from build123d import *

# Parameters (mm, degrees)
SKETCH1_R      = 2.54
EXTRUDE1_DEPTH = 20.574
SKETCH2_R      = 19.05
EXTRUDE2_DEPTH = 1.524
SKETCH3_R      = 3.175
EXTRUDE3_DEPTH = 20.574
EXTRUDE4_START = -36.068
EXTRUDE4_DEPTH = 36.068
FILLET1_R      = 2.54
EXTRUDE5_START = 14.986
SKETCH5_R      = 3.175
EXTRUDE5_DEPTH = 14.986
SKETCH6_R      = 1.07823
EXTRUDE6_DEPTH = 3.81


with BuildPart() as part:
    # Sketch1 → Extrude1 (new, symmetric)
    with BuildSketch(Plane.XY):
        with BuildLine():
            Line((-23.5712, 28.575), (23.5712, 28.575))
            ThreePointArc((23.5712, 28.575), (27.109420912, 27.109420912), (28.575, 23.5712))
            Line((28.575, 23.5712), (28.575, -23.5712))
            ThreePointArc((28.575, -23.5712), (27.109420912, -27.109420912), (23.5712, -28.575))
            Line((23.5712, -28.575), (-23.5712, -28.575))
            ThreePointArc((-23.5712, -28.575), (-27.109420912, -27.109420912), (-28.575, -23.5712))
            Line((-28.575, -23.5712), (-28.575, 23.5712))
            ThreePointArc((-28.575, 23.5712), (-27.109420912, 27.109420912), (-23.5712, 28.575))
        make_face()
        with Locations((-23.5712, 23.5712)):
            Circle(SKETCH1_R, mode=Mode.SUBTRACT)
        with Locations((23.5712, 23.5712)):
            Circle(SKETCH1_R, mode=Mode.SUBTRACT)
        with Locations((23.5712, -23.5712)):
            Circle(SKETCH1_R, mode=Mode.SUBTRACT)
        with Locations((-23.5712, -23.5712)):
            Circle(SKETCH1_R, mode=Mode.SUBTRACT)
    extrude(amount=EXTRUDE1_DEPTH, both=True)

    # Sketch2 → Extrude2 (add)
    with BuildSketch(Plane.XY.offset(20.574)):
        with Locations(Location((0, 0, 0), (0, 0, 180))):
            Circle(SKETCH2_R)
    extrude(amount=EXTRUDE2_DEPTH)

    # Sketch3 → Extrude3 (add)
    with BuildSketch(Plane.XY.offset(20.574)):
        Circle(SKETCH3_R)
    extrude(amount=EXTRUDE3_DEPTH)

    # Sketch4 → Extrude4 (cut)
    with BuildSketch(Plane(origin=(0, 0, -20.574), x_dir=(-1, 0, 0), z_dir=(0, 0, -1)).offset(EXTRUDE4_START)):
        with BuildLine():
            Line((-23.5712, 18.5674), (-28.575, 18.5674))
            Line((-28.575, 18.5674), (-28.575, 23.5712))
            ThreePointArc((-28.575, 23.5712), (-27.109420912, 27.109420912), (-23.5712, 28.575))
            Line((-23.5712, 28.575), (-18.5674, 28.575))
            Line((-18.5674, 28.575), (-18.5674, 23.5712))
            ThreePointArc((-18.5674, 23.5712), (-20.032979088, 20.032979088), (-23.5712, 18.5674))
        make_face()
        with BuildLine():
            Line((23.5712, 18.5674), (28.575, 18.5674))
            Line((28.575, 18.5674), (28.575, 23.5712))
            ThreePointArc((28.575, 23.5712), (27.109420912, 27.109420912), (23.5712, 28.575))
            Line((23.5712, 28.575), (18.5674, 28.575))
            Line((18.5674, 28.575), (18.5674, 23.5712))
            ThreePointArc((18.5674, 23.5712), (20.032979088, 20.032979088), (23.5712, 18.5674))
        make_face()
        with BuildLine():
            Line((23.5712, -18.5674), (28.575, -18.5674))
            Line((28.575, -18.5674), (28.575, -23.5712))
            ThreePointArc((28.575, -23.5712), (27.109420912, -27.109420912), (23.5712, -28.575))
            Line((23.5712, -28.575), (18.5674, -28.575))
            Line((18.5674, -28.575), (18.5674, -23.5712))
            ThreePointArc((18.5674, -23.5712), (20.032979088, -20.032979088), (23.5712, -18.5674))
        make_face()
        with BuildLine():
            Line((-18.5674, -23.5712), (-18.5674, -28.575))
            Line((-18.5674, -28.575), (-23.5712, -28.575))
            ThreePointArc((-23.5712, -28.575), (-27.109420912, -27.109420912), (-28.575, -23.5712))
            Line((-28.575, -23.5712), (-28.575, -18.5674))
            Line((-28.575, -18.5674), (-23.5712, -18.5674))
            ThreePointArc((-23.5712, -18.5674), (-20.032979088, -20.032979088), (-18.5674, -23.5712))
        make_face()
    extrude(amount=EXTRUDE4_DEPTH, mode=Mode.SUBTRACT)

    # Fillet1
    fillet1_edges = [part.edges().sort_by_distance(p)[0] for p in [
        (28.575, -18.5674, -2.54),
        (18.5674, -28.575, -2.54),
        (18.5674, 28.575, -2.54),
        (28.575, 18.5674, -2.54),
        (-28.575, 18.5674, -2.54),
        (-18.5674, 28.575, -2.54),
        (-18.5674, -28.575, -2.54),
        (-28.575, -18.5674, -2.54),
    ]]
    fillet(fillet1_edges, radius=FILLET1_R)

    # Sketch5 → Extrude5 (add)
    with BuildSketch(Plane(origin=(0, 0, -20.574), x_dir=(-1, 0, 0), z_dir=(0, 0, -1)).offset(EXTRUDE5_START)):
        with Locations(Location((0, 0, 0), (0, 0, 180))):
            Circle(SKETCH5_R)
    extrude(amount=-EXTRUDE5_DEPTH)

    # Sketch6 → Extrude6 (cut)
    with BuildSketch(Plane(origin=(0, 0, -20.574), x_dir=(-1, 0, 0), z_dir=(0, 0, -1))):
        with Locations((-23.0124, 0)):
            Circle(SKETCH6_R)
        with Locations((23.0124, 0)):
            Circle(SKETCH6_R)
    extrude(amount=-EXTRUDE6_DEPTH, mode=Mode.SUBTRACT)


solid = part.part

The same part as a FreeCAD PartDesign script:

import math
import FreeCAD as App
import Part
import Sketcher

V = App.Vector
Q = App.Units.Quantity


def edges_at(feature, points):
    """Names of the edges that pass closest to the given points."""
    edges = feature.Shape.Edges
    near = lambda p: min(range(len(edges)), key=lambda i: edges[i].distToShape(Part.Vertex(*p))[0])
    return sorted({f"Edge{near(p) + 1}" for p in points})

doc = App.newDocument("Part")
params = doc.addObject("Spreadsheet::Sheet", "Params")
for row, (alias, value) in enumerate([
    ("sketch1_diameter", "0.2 in"),
    ("sketch1_radius", "0.197 in"),
    ("sketch1_width", "1.856 in"),
    ("pad1_length", "1.62 in"),
    ("sketch2_diameter", "1.5 in"),
    ("pad2_length", "0.06 in"),
    ("sketch3_diameter", "0.25 in"),
    ("pad3_length", "0.81 in"),
    ("sketch4_radius", "0.197 in"),
    ("pocket1_length", "1.42 in"),
    ("fillet_radius", "0.1 in"),
    ("sketch5_diameter", "0.25 in"),
    ("pad4_length", "0.59 in"),
    ("pocket2_length", "0.15 in"),
], start=1):
    params.set(f"A{row}", alias)
    params.set(f"B{row}", "=" + value)
    params.setAlias(f"B{row}", alias)

body = doc.addObject("PartDesign::Body", "Body")

# Sketch on XY plane
sketch1 = body.newObject("Sketcher::SketchObject", "Sketch")
sketch1.AttachmentSupport = (doc.getObject("XY_Plane"), [""])
sketch1.MapMode = "FlatFace"
sketch1.addGeometry(Part.LineSegment(V(23.6, 28.6, 0), V(-23.6, 28.6, 0)), False)
sketch1.addGeometry(Part.ArcOfCircle(Part.Circle(V(-23.6, 23.6, 0), V(0, 0, 1), 5), math.radians(90), math.radians(180)), False)
sketch1.addGeometry(Part.LineSegment(V(-28.6, 23.6, 0), V(-28.6, -23.6, 0)), False)
sketch1.addGeometry(Part.ArcOfCircle(Part.Circle(V(-23.6, -23.6, 0), V(0, 0, 1), 5), math.radians(180), math.radians(270)), False)
sketch1.addGeometry(Part.LineSegment(V(-23.6, -28.6, 0), V(23.6, -28.6, 0)), False)
sketch1.addGeometry(Part.ArcOfCircle(Part.Circle(V(23.6, -23.6, 0), V(0, 0, 1), 5), math.radians(-90), math.radians(0)), False)
sketch1.addGeometry(Part.LineSegment(V(28.6, -23.6, 0), V(28.6, 23.6, 0)), False)
sketch1.addGeometry(Part.ArcOfCircle(Part.Circle(V(23.6, 23.6, 0), V(0, 0, 1), 5), math.radians(0), math.radians(90)), False)
sketch1.addGeometry(Part.Circle(V(23.6, -23.6, 0), V(0, 0, 1), 2.5), False)
sketch1.addGeometry(Part.Circle(V(-23.6, -23.6, 0), V(0, 0, 1), 2.5), False)
sketch1.addGeometry(Part.Circle(V(23.6, 23.6, 0), V(0, 0, 1), 2.5), False)
sketch1.addGeometry(Part.Circle(V(-23.6, 23.6, 0), V(0, 0, 1), 2.5), False)
sketch1.addConstraint(Sketcher.Constraint("Tangent", 0, 2, 1, 1))
sketch1.addConstraint(Sketcher.Constraint("Tangent", 1, 2, 2, 1))
sketch1.addConstraint(Sketcher.Constraint("Tangent", 2, 2, 3, 1))
sketch1.addConstraint(Sketcher.Constraint("Tangent", 3, 2, 4, 1))
sketch1.addConstraint(Sketcher.Constraint("Tangent", 4, 2, 5, 1))
sketch1.addConstraint(Sketcher.Constraint("Tangent", 5, 2, 6, 1))
sketch1.addConstraint(Sketcher.Constraint("Tangent", 6, 2, 7, 1))
sketch1.addConstraint(Sketcher.Constraint("Tangent", 7, 2, 0, 1))
sketch1.addConstraint(Sketcher.Constraint("Horizontal", 0))
sketch1.addConstraint(Sketcher.Constraint("Vertical", 2))
sketch1.addConstraint(Sketcher.Constraint("Horizontal", 4))
sketch1.addConstraint(Sketcher.Constraint("Vertical", 6))
sketch1.addConstraint(Sketcher.Constraint("Coincident", 8, 3, 5, 3))
sketch1.addConstraint(Sketcher.Constraint("Coincident", 9, 3, 3, 3))
sketch1.addConstraint(Sketcher.Constraint("Coincident", 10, 3, 7, 3))
sketch1.addConstraint(Sketcher.Constraint("Coincident", 11, 3, 1, 3))
sketch1.addConstraint(Sketcher.Constraint("Equal", 1, 3))
sketch1.addConstraint(Sketcher.Constraint("Equal", 3, 5))
sketch1.addConstraint(Sketcher.Constraint("Equal", 5, 7))
sketch1.addConstraint(Sketcher.Constraint("Equal", 8, 9))
sketch1.addConstraint(Sketcher.Constraint("Equal", 9, 10))
sketch1.addConstraint(Sketcher.Constraint("Equal", 10, 11))
sketch1.addConstraint(Sketcher.Constraint("Symmetric", 1, 3, 5, 3, -1, 1))
sketch1.addConstraint(Sketcher.Constraint("Equal", 4, 2))
sketch1.addConstraint(Sketcher.Constraint("Diameter", 8, Q("0.2 in")))
sketch1.addConstraint(Sketcher.Constraint("Radius", 1, Q("0.197 in")))
sketch1.addConstraint(Sketcher.Constraint("DistanceX", 0, 2, 0, 1, Q("1.856 in")))
sketch1.setExpression("Constraints[24]", "Params.sketch1_diameter")
sketch1.setExpression("Constraints[25]", "Params.sketch1_radius")
sketch1.setExpression("Constraints[26]", "Params.sketch1_width")
pad1 = body.newObject("PartDesign::Pad", "Pad")
pad1.Profile = sketch1
pad1.setExpression("Length", "Params.pad1_length")
pad1.Midplane = True

# Sketch on XY plane
sketch2 = body.newObject("Sketcher::SketchObject", "Sketch001")
sketch2.AttachmentSupport = (doc.getObject("XY_Plane"), [""])
sketch2.MapMode = "FlatFace"
sketch2.AttachmentOffset = App.Placement(V(0, 0, 0.81 * 25.4), App.Rotation())
sketch2.addGeometry(Part.Circle(V(0, 0, 0), V(0, 0, 1), 19), False)
sketch2.addConstraint(Sketcher.Constraint("Coincident", 0, 3, -1, 1))
sketch2.addConstraint(Sketcher.Constraint("Diameter", 0, Q("1.5 in")))
sketch2.setExpression("Constraints[1]", "Params.sketch2_diameter")
pad2 = body.newObject("PartDesign::Pad", "Pad001")
pad2.Profile = sketch2
pad2.setExpression("Length", "Params.pad2_length")

# Sketch on XY plane
sketch3 = body.newObject("Sketcher::SketchObject", "Sketch002")
sketch3.AttachmentSupport = (doc.getObject("XY_Plane"), [""])
sketch3.MapMode = "FlatFace"
sketch3.AttachmentOffset = App.Placement(V(0, 0, 0.81 * 25.4), App.Rotation())
sketch3.addGeometry(Part.Circle(V(0, 0, 0), V(0, 0, 1), 3.2), False)
sketch3.addConstraint(Sketcher.Constraint("Coincident", 0, 3, -1, 1))
sketch3.addConstraint(Sketcher.Constraint("Diameter", 0, Q("0.25 in")))
sketch3.setExpression("Constraints[1]", "Params.sketch3_diameter")
pad3 = body.newObject("PartDesign::Pad", "Pad002")
pad3.Profile = sketch3
pad3.setExpression("Length", "Params.pad3_length")

# Sketch on XY plane
sketch4 = body.newObject("Sketcher::SketchObject", "Sketch003")
sketch4.AttachmentSupport = (doc.getObject("XY_Plane"), [""])
sketch4.MapMode = "FlatFace"
sketch4.AttachmentOffset = App.Placement(V(0, 0, 0.61 * 25.4), App.Rotation())
sketch4.addGeometry(Part.LineSegment(V(29, 19, 0), V(24, 19, 0)), False)
sketch4.addGeometry(Part.ArcOfCircle(Part.Circle(V(24, 24, 0), V(0, 0, 1), 5), math.radians(180), math.radians(270)), False)
sketch4.addGeometry(Part.LineSegment(V(19, 24, 0), V(19, 29, 0)), False)
sketch4.addGeometry(Part.LineSegment(V(19, 29, 0), V(24, 29, 0)), False)
sketch4.addGeometry(Part.ArcOfCircle(Part.Circle(V(24, 24, 0), V(0, 0, 1), 5), math.radians(0), math.radians(90)), False)
sketch4.addGeometry(Part.LineSegment(V(29, 24, 0), V(29, 19, 0)), False)
sketch4.addGeometry(Part.LineSegment(V(-24, 19, 0), V(-29, 19, 0)), False)
sketch4.addGeometry(Part.LineSegment(V(-29, 19, 0), V(-29, 24, 0)), False)
sketch4.addGeometry(Part.ArcOfCircle(Part.Circle(V(-24, 24, 0), V(0, 0, 1), 5), math.radians(90), math.radians(180)), False)
sketch4.addGeometry(Part.LineSegment(V(-24, 29, 0), V(-19, 29, 0)), False)
sketch4.addGeometry(Part.LineSegment(V(-19, 29, 0), V(-19, 24, 0)), False)
sketch4.addGeometry(Part.ArcOfCircle(Part.Circle(V(-24, 24, 0), V(0, 0, 1), 5), math.radians(-90), math.radians(0)), False)
sketch4.addGeometry(Part.LineSegment(V(-29, -19, 0), V(-24, -19, 0)), False)
sketch4.addGeometry(Part.ArcOfCircle(Part.Circle(V(-24, -24, 0), V(0, 0, 1), 5), math.radians(0), math.radians(90)), False)
sketch4.addGeometry(Part.LineSegment(V(-19, -24, 0), V(-19, -29, 0)), False)
sketch4.addGeometry(Part.LineSegment(V(-19, -29, 0), V(-24, -29, 0)), False)
sketch4.addGeometry(Part.ArcOfCircle(Part.Circle(V(-24, -24, 0), V(0, 0, 1), 5), math.radians(180), math.radians(270)), False)
sketch4.addGeometry(Part.LineSegment(V(-29, -24, 0), V(-29, -19, 0)), False)
sketch4.addGeometry(Part.LineSegment(V(19, -29, 0), V(19, -24, 0)), False)
sketch4.addGeometry(Part.ArcOfCircle(Part.Circle(V(24, -24, 0), V(0, 0, 1), 5), math.radians(90), math.radians(180)), False)
sketch4.addGeometry(Part.LineSegment(V(24, -19, 0), V(29, -19, 0)), False)
sketch4.addGeometry(Part.LineSegment(V(29, -19, 0), V(29, -24, 0)), False)
sketch4.addGeometry(Part.ArcOfCircle(Part.Circle(V(24, -24, 0), V(0, 0, 1), 5), math.radians(-90), math.radians(0)), False)
sketch4.addGeometry(Part.LineSegment(V(24, -29, 0), V(19, -29, 0)), False)
sketch4.addConstraint(Sketcher.Constraint("Tangent", 0, 2, 1, 2))
sketch4.addConstraint(Sketcher.Constraint("Tangent", 1, 1, 2, 1))
sketch4.addConstraint(Sketcher.Constraint("Coincident", 2, 2, 3, 1))
sketch4.addConstraint(Sketcher.Constraint("Tangent", 3, 2, 4, 2))
sketch4.addConstraint(Sketcher.Constraint("Tangent", 4, 1, 5, 1))
sketch4.addConstraint(Sketcher.Constraint("Coincident", 5, 2, 0, 1))
sketch4.addConstraint(Sketcher.Constraint("Coincident", 6, 2, 7, 1))
sketch4.addConstraint(Sketcher.Constraint("Tangent", 7, 2, 8, 2))
sketch4.addConstraint(Sketcher.Constraint("Tangent", 8, 1, 9, 1))
sketch4.addConstraint(Sketcher.Constraint("Coincident", 9, 2, 10, 1))
sketch4.addConstraint(Sketcher.Constraint("Tangent", 10, 2, 11, 2))
sketch4.addConstraint(Sketcher.Constraint("Tangent", 11, 1, 6, 1))
sketch4.addConstraint(Sketcher.Constraint("Tangent", 12, 2, 13, 2))
sketch4.addConstraint(Sketcher.Constraint("Tangent", 13, 1, 14, 1))
sketch4.addConstraint(Sketcher.Constraint("Coincident", 14, 2, 15, 1))
sketch4.addConstraint(Sketcher.Constraint("Tangent", 15, 2, 16, 2))
sketch4.addConstraint(Sketcher.Constraint("Tangent", 16, 1, 17, 1))
sketch4.addConstraint(Sketcher.Constraint("Coincident", 17, 2, 12, 1))
sketch4.addConstraint(Sketcher.Constraint("Tangent", 18, 2, 19, 2))
sketch4.addConstraint(Sketcher.Constraint("Tangent", 19, 1, 20, 1))
sketch4.addConstraint(Sketcher.Constraint("Coincident", 20, 2, 21, 1))
sketch4.addConstraint(Sketcher.Constraint("Tangent", 21, 2, 22, 2))
sketch4.addConstraint(Sketcher.Constraint("Tangent", 22, 1, 23, 1))
sketch4.addConstraint(Sketcher.Constraint("Coincident", 23, 2, 18, 1))
sketch4.addConstraint(Sketcher.Constraint("Horizontal", 0))
sketch4.addConstraint(Sketcher.Constraint("Vertical", 2))
sketch4.addConstraint(Sketcher.Constraint("Horizontal", 3))
sketch4.addConstraint(Sketcher.Constraint("Vertical", 5))
sketch4.addConstraint(Sketcher.Constraint("Horizontal", 6))
sketch4.addConstraint(Sketcher.Constraint("Vertical", 7))
sketch4.addConstraint(Sketcher.Constraint("Horizontal", 9))
sketch4.addConstraint(Sketcher.Constraint("Vertical", 10))
sketch4.addConstraint(Sketcher.Constraint("Horizontal", 12))
sketch4.addConstraint(Sketcher.Constraint("Vertical", 14))
sketch4.addConstraint(Sketcher.Constraint("Horizontal", 15))
sketch4.addConstraint(Sketcher.Constraint("Vertical", 17))
sketch4.addConstraint(Sketcher.Constraint("Vertical", 18))
sketch4.addConstraint(Sketcher.Constraint("Horizontal", 20))
sketch4.addConstraint(Sketcher.Constraint("Vertical", 21))
sketch4.addConstraint(Sketcher.Constraint("Horizontal", 23))
sketch4.addConstraint(Sketcher.Constraint("Coincident", 4, 3, 1, 3))
sketch4.addConstraint(Sketcher.Constraint("Coincident", 11, 3, 8, 3))
sketch4.addConstraint(Sketcher.Constraint("Coincident", 16, 3, 13, 3))
sketch4.addConstraint(Sketcher.Constraint("Coincident", 22, 3, 19, 3))
sketch4.addConstraint(Sketcher.Constraint("Equal", 1, 4))
sketch4.addConstraint(Sketcher.Constraint("Equal", 4, 8))
sketch4.addConstraint(Sketcher.Constraint("Equal", 8, 11))
sketch4.addConstraint(Sketcher.Constraint("Equal", 11, 13))
sketch4.addConstraint(Sketcher.Constraint("Equal", 13, 16))
sketch4.addConstraint(Sketcher.Constraint("Equal", 16, 19))
sketch4.addConstraint(Sketcher.Constraint("Equal", 19, 22))
sketch4.addConstraint(Sketcher.Constraint("Symmetric", 1, 3, 13, 3, -1, 1))
sketch4.addConstraint(Sketcher.Constraint("Symmetric", 8, 3, 19, 3, -1, 1))
sketch4.addConstraint(Sketcher.Constraint("Symmetric", 1, 3, 8, 3, -2))
sketch4.addConstraint(Sketcher.Constraint("Radius", 1, Q("0.197 in")))
sketch4.addConstraint(Sketcher.Constraint("DistanceX", -1, 1, 1, 3, Q("0.928 in")))
sketch4.addConstraint(Sketcher.Constraint("DistanceY", -1, 1, 1, 3, Q("0.928 in")))
sketch4.setExpression("Constraints[54]", "Params.sketch4_radius")
pocket1 = body.newObject("PartDesign::Pocket", "Pocket")
pocket1.Profile = sketch4
pocket1.setExpression("Length", "Params.pocket1_length")
doc.recompute()

fillet = body.newObject("PartDesign::Fillet", "Fillet")
fillet.Base = (pocket1, edges_at(pocket1, [
    (28.575, -18.567, -2.54),
    (18.567, -28.575, -2.54),
    (18.567, 28.575, -2.54),
    (28.575, 18.567, -2.54),
    (-28.575, 18.567, -2.54),
    (-18.567, 28.575, -2.54),
    (-18.567, -28.575, -2.54),
    (-28.575, -18.567, -2.54),
]))
fillet.setExpression("Radius", "Params.fillet_radius")

# Sketch on XY plane
sketch5 = body.newObject("Sketcher::SketchObject", "Sketch004")
sketch5.AttachmentSupport = (doc.getObject("XY_Plane"), [""])
sketch5.MapMode = "FlatFace"
sketch5.AttachmentOffset = App.Placement(V(0, 0, -1.4 * 25.4), App.Rotation())
sketch5.addGeometry(Part.Circle(V(0, 0, 0), V(0, 0, 1), 3.2), False)
sketch5.addConstraint(Sketcher.Constraint("Coincident", 0, 3, -1, 1))
sketch5.addConstraint(Sketcher.Constraint("Diameter", 0, Q("0.25 in")))
sketch5.setExpression("Constraints[1]", "Params.sketch5_diameter")
pad4 = body.newObject("PartDesign::Pad", "Pad003")
pad4.Profile = sketch5
pad4.setExpression("Length", "Params.pad4_length")

# Sketch on XY plane
sketch6 = body.newObject("Sketcher::SketchObject", "Sketch005")
sketch6.AttachmentSupport = (doc.getObject("XY_Plane"), [""])
sketch6.MapMode = "FlatFace"
sketch6.AttachmentOffset = App.Placement(V(0, 0, -0.81 * 25.4), App.Rotation())
sketch6.addGeometry(Part.Circle(V(23, 0, 0), V(0, 0, 1), 1.1), False)
sketch6.addGeometry(Part.Circle(V(-23, 0, 0), V(0, 0, 1), 1.1), False)
sketch6.addConstraint(Sketcher.Constraint("Equal", 0, 1))
sketch6.addConstraint(Sketcher.Constraint("Symmetric", 0, 3, 1, 3, -1, 1))
sketch6.addConstraint(Sketcher.Constraint("PointOnObject", 0, 3, -1))
sketch6.addConstraint(Sketcher.Constraint("Diameter", 0, Q("0.0849 in")))
sketch6.addConstraint(Sketcher.Constraint("DistanceX", -1, 1, 0, 3, Q("0.906 in")))
pocket2 = body.newObject("PartDesign::Pocket", "Pocket001")
pocket2.Profile = sketch6
pocket2.setExpression("Length", "Params.pocket2_length")
pocket2.Reversed = True

doc.recompute()
